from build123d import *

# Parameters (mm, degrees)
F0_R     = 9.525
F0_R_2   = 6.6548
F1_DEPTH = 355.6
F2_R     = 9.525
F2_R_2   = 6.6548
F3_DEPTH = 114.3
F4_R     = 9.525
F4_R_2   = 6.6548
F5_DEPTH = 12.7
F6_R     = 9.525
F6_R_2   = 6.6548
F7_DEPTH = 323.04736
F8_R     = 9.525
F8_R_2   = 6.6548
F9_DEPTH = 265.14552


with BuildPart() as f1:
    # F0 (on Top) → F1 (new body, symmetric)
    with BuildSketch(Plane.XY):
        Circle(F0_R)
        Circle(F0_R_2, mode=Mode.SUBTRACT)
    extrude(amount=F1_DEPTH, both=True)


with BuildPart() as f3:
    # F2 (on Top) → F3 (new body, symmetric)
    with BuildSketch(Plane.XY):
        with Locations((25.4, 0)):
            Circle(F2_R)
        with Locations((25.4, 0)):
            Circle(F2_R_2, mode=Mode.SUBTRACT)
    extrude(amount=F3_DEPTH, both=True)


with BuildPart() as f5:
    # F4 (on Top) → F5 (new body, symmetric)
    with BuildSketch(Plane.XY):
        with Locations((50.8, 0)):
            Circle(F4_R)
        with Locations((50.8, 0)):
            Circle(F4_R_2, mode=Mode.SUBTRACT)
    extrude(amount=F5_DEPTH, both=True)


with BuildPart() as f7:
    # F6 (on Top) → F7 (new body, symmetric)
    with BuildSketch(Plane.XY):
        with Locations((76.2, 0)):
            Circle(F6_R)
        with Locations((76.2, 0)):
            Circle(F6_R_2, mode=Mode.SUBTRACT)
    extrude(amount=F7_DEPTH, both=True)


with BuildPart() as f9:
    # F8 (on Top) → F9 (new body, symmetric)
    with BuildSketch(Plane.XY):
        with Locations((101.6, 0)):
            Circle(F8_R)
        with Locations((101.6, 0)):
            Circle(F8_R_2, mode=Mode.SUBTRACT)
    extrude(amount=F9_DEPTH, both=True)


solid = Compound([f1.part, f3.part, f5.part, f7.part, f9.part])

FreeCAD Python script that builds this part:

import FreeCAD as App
import Part
import Sketcher

V = App.Vector
Q = App.Units.Quantity

doc = App.newDocument("Part")
body = doc.addObject("PartDesign::Body", "Body")

sketch1 = body.newObject("Sketcher::SketchObject", "Sketch")
sketch1.AttachmentSupport = (doc.getObject("XY_Plane"), [""])
sketch1.MapMode = "FlatFace"
sketch1.addGeometry([
    Part.Circle(V(0, 0, 0), V(0, 0, 1), 9.525),
    Part.Circle(V(0, 0, 0), V(0, 0, 1), 6.6548),
], False)
sketch1.addConstraint([
    Sketcher.Constraint("Coincident", 0, 3, -1, 1),
    Sketcher.Constraint("Coincident", 1, 3, -1, 1),
    Sketcher.Constraint("Diameter", 0, Q("0.75 in")),
    Sketcher.Constraint("Diameter", 1, Q("0.524 in")),
])
pad1 = body.newObject("PartDesign::Pad", "Pad")
pad1.Profile = sketch1
pad1.Length = Q("28 in")
pad1.Midplane = True
body2 = doc.addObject("PartDesign::Body", "Body001")

sketch2 = body2.newObject("Sketcher::SketchObject", "Sketch001")
sketch2.AttachmentSupport = (doc.getObject("XY_Plane001"), [""])
sketch2.MapMode = "FlatFace"
sketch2.addGeometry([
    Part.Circle(V(25.4, 0, 0), V(0, 0, 1), 9.525),
    Part.Circle(V(25.4, 0, 0), V(0, 0, 1), 6.6548),
], False)
sketch2.addConstraint([
    Sketcher.Constraint("Coincident", 1, 3, 0, 3),
    Sketcher.Constraint("PointOnObject", 0, 3, -1),
    Sketcher.Constraint("Diameter", 0, Q("0.75 in")),
    Sketcher.Constraint("Diameter", 1, Q("0.524 in")),
    Sketcher.Constraint("DistanceX", -1, 1, 0, 3, Q("1 in")),
])
pad2 = body2.newObject("PartDesign::Pad", "Pad001")
pad2.Profile = sketch2
pad2.Length = Q("9 in")
pad2.Midplane = True
body3 = doc.addObject("PartDesign::Body", "Body002")

sketch3 = body3.newObject("Sketcher::SketchObject", "Sketch002")
sketch3.AttachmentSupport = (doc.getObject("XY_Plane002"), [""])
sketch3.MapMode = "FlatFace"
sketch3.addGeometry([
    Part.Circle(V(50.8, 0, 0), V(0, 0, 1), 9.525),
    Part.Circle(V(50.8, 0, 0), V(0, 0, 1), 6.6548),
], False)
sketch3.addConstraint([
    Sketcher.Constraint("Coincident", 1, 3, 0, 3),
    Sketcher.Constraint("PointOnObject", 0, 3, -1),
    Sketcher.Constraint("Diameter", 0, Q("0.75 in")),
    Sketcher.Constraint("Diameter", 1, Q("0.524 in")),
    Sketcher.Constraint("DistanceX", -1, 1, 0, 3, Q("2 in")),
])
pad3 = body3.newObject("PartDesign::Pad", "Pad002")
pad3.Profile = sketch3
pad3.Length = Q("1 in")
pad3.Midplane = True
body4 = doc.addObject("PartDesign::Body", "Body003")

sketch4 = body4.newObject("Sketcher::SketchObject", "Sketch003")
sketch4.AttachmentSupport = (doc.getObject("XY_Plane003"), [""])
sketch4.MapMode = "FlatFace"
sketch4.addGeometry([
    Part.Circle(V(76.2, 0, 0), V(0, 0, 1), 9.525),
    Part.Circle(V(76.2, 0, 0), V(0, 0, 1), 6.6548),
], False)
sketch4.addConstraint([
    Sketcher.Constraint("Coincident", 1, 3, 0, 3),
    Sketcher.Constraint("PointOnObject", 0, 3, -1),
    Sketcher.Constraint("Diameter", 0, Q("0.75 in")),
    Sketcher.Constraint("Diameter", 1, Q("0.524 in")),
    Sketcher.Constraint("DistanceX", -1, 1, 0, 3, Q("3 in")),
])
pad4 = body4.newObject("PartDesign::Pad", "Pad003")
pad4.Profile = sketch4
pad4.Length = Q("25.4368 in")
pad4.Midplane = True
body5 = doc.addObject("PartDesign::Body", "Body004")

sketch5 = body5.newObject("Sketcher::SketchObject", "Sketch004")
sketch5.AttachmentSupport = (doc.getObject("XY_Plane004"), [""])
sketch5.MapMode = "FlatFace"
sketch5.addGeometry([
    Part.Circle(V(101.6, 0, 0), V(0, 0, 1), 9.525),
    Part.Circle(V(101.6, 0, 0), V(0, 0, 1), 6.6548),
], False)
sketch5.addConstraint([
    Sketcher.Constraint("Coincident", 1, 3, 0, 3),
    Sketcher.Constraint("PointOnObject", 0, 3, -1),
    Sketcher.Constraint("Diameter", 0, Q("0.75 in")),
    Sketcher.Constraint("Diameter", 1, Q("0.524 in")),
    Sketcher.Constraint("DistanceX", -1, 1, 0, 3, Q("4 in")),
])
pad5 = body5.newObject("PartDesign::Pad", "Pad004")
pad5.Profile = sketch5
pad5.Length = Q("20.8776 in")
pad5.Midplane = True

doc.recompute()
